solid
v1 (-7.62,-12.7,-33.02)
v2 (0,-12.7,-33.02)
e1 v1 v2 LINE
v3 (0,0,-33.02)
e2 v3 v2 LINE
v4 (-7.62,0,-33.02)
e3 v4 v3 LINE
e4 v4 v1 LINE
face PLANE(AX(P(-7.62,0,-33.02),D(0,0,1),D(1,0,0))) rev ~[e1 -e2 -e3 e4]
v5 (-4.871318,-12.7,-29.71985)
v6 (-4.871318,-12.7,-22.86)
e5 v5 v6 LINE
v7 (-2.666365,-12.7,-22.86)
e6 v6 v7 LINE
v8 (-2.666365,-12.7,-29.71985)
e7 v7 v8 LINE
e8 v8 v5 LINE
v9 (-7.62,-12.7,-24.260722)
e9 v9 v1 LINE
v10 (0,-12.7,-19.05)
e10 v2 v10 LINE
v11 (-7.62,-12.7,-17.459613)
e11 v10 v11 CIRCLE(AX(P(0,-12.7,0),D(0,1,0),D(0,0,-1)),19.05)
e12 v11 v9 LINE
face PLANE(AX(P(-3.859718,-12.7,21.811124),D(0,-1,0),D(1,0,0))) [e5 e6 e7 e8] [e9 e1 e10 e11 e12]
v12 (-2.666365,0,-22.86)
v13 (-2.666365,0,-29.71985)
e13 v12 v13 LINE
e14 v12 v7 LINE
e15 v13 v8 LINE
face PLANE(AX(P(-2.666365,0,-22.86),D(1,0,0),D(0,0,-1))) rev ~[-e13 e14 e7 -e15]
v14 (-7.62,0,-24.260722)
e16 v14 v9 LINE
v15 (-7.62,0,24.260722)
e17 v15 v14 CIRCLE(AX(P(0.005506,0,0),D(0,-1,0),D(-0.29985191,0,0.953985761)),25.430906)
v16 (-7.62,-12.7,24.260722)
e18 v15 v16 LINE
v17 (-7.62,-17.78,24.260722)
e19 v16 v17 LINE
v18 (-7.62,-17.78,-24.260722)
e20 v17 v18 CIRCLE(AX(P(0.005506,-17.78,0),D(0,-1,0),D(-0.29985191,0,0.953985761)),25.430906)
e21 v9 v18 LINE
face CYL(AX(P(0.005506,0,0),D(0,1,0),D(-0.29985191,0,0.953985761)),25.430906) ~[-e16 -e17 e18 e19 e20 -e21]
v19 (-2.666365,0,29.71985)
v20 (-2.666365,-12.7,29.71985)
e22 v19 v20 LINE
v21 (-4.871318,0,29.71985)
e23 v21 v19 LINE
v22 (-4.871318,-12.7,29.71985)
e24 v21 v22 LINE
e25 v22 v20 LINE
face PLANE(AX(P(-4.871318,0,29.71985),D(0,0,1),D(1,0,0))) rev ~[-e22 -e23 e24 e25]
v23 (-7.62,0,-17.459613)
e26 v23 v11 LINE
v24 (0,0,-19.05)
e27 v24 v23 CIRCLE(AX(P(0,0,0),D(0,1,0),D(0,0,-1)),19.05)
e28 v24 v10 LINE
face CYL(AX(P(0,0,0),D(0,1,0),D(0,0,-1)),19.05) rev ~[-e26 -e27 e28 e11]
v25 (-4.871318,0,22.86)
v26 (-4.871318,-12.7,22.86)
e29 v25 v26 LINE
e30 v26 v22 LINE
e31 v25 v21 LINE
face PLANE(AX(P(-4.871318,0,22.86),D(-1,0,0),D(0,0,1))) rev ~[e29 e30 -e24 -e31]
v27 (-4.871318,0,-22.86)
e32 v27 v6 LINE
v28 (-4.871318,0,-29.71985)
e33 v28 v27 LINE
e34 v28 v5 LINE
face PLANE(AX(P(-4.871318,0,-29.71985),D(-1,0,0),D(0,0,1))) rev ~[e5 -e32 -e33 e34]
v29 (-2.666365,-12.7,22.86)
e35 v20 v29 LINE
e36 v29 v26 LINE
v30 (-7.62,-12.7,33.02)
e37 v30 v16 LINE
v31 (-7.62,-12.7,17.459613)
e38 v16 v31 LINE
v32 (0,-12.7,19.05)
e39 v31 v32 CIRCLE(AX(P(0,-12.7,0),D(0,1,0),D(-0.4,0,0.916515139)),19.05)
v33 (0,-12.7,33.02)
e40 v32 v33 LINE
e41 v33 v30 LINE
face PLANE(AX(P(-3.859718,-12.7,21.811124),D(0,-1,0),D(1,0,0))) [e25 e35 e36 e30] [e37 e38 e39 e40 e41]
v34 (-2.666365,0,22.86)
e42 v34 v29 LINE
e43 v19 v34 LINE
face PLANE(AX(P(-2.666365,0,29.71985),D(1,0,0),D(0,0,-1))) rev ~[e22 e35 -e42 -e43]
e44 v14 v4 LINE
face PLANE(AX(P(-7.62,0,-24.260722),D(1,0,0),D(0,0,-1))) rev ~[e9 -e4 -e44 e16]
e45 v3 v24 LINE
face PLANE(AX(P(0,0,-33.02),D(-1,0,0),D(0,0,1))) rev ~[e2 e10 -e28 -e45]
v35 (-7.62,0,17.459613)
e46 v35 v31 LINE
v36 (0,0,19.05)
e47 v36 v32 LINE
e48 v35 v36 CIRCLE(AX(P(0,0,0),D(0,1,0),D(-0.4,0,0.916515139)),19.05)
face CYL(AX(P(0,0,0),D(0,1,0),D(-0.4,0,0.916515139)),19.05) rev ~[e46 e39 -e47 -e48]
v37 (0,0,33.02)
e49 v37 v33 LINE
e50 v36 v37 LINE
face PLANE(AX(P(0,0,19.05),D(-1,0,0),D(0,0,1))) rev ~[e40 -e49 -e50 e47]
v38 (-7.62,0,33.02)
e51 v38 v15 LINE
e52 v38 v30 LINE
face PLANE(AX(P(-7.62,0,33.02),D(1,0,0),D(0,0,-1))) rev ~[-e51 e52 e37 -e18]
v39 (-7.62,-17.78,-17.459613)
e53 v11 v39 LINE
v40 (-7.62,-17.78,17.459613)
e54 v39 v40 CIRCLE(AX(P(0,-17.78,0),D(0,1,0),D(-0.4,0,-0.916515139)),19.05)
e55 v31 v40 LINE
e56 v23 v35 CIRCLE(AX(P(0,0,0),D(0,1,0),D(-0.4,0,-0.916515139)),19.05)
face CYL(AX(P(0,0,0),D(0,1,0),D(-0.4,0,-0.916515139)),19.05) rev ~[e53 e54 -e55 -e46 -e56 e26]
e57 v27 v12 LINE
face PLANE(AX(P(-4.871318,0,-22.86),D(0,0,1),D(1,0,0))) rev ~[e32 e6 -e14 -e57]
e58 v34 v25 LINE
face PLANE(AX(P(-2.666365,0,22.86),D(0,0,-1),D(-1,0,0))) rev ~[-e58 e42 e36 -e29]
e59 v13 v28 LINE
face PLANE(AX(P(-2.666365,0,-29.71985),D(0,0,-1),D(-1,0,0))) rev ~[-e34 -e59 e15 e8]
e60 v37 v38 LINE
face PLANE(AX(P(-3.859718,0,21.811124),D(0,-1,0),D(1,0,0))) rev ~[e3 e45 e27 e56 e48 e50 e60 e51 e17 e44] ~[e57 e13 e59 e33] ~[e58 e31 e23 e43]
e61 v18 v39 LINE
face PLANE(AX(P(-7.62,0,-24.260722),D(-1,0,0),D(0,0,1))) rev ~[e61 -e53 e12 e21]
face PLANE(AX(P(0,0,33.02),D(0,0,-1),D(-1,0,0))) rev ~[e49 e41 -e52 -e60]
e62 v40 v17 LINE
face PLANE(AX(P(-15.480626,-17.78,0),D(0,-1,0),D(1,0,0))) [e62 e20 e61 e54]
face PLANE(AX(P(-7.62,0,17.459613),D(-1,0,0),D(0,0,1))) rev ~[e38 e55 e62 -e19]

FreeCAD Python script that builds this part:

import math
import FreeCAD as App
import Part
import Sketcher
Q = App.Units.Quantity


def add_polygon(sketch, points):
    """Adds a closed chain of lines whose ends are joined by coincident constraints."""
    first, n = sketch.GeometryCount, len(points)
    for a, b in zip(points, points[1:] + points[:1]):
        sketch.addGeometry(Part.LineSegment(App.Vector(*a, 0), App.Vector(*b, 0)), False)
    for i in range(n):
        sketch.addConstraint(Sketcher.Constraint("Coincident", first + i, 2, first + (i + 1) % n, 1))

doc = App.newDocument("Part")
body = doc.addObject("PartDesign::Body", "Body")

sketch1 = doc.addObject("Sketcher::SketchObject", "Sketch")
body.addObject(sketch1)
sketch1.AttachmentSupport = (doc.XZ_Plane, [""])
sketch1.MapMode = "FlatFace"
sketch1.addGeometry(Part.LineSegment(App.Vector(-7.62, 33.02, 0), App.Vector(-7.62, 24.260722, 0)), False)
sketch1.addGeometry(Part.ArcOfCircle(Part.Circle(App.Vector(0.005506, 0, 0), App.Vector(0, 0, 1), 25.430906), math.radians(107.448709), math.radians(252.551291)), False)
sketch1.addGeometry(Part.LineSegment(App.Vector(-7.62, -24.260722, 0), App.Vector(-7.62, -33.02, 0)), False)
sketch1.addGeometry(Part.LineSegment(App.Vector(-7.62, -33.02, 0), App.Vector(0, -33.02, 0)), False)
sketch1.addGeometry(Part.LineSegment(App.Vector(0, -33.02, 0), App.Vector(0, -19.05, 0)), False)
sketch1.addGeometry(Part.ArcOfCircle(Part.Circle(App.Vector(0, 0, 0), App.Vector(0, 0, 1), 19.05), math.radians(-113.578178), math.radians(-90)), False)
sketch1.addGeometry(Part.ArcOfCircle(Part.Circle(App.Vector(0, 0, 0), App.Vector(0, 0, 1), 19.05), math.radians(113.578178), math.radians(246.421822)), False)
sketch1.addGeometry(Part.ArcOfCircle(Part.Circle(App.Vector(0, 0, 0), App.Vector(0, 0, 1), 19.05), math.radians(90), math.radians(113.578178)), False)
sketch1.addGeometry(Part.LineSegment(App.Vector(0, 19.05, 0), App.Vector(0, 33.02, 0)), False)
sketch1.addGeometry(Part.LineSegment(App.Vector(0, 33.02, 0), App.Vector(-7.62, 33.02, 0)), False)
add_polygon(sketch1, [(-2.666365, 22.86), (-4.871318, 22.86), (-4.871318, 29.71985), (-2.666365, 29.71985)])
add_polygon(sketch1, [(-2.666365, -29.71985), (-4.871318, -29.71985), (-4.871318, -22.86), (-2.666365, -22.86)])
sketch1.addConstraint([
    Sketcher.Constraint("Coincident", 0, 2, 1, 1),
    Sketcher.Constraint("Coincident", 1, 2, 2, 1),
    Sketcher.Constraint("Coincident", 2, 2, 3, 1),
    Sketcher.Constraint("Coincident", 3, 2, 4, 1),
    Sketcher.Constraint("Coincident", 4, 2, 5, 2),
    Sketcher.Constraint("Tangent", 5, 1, 6, 2),
    Sketcher.Constraint("Tangent", 6, 1, 7, 2),
    Sketcher.Constraint("Coincident", 7, 1, 8, 1),
    Sketcher.Constraint("Coincident", 8, 2, 9, 1),
    Sketcher.Constraint("Coincident", 9, 2, 0, 1),
    Sketcher.Constraint("Vertical", 0),
    Sketcher.Constraint("Vertical", 2),
    Sketcher.Constraint("Horizontal", 3),
    Sketcher.Constraint("Vertical", 4),
    Sketcher.Constraint("Vertical", 8),
    Sketcher.Constraint("Horizontal", 9),
    Sketcher.Constraint("Horizontal", 10),
    Sketcher.Constraint("Vertical", 11),
    Sketcher.Constraint("Horizontal", 12),
    Sketcher.Constraint("Vertical", 13),
    Sketcher.Constraint("Horizontal", 14),
    Sketcher.Constraint("Vertical", 15),
    Sketcher.Constraint("Horizontal", 16),
    Sketcher.Constraint("Vertical", 17),
    Sketcher.Constraint("Coincident", 5, 3, -1, 1),
    Sketcher.Constraint("Coincident", 7, 3, -1, 1),
    Sketcher.Constraint("Symmetric", 3, 2, 8, 2, -1, 1),
    Sketcher.Constraint("Symmetric", 0, 2, 1, 2, -1),
    Sketcher.Constraint("Symmetric", 11, 2, 14, 2, -1),
    Sketcher.Constraint("Symmetric", 13, 2, 16, 2, -1),
    Sketcher.Constraint("PointOnObject", 3, 2, -2),
    Sketcher.Constraint("Vertical", 2, 2, 5, 1),
    Sketcher.Constraint("Vertical", 5, 1, 6, 1),
    Sketcher.Constraint("Radius", 5, Q("0.75 in")),
    Sketcher.Constraint("DistanceX", 3, 1, 3, 2, Q("0.3 in")),
    Sketcher.Constraint("DistanceY", 4, 1, 4, 2, Q("0.55 in")),
    Sketcher.Constraint("DistanceY", -1, 1, 10, 2, Q("0.9 in")),
    Sketcher.Constraint("Radius", 1, 25.430906),
    Sketcher.Constraint("DistanceY", 0, 2, 0, 1, 8.759278),
    Sketcher.Constraint("DistanceY", 11, 1, 11, 2, 6.85985),
    Sketcher.Constraint("DistanceX", 10, 2, 10, 1, 2.204953),
    Sketcher.Constraint("DistanceX", 10, 2, -1, 1, 4.871318),
])
pad1 = doc.addObject("PartDesign::Pad", "Pad")
body.addObject(pad1)
pad1.Profile = sketch1
pad1.Length = Q("0.5 in")

sketch2 = doc.addObject("Sketcher::SketchObject", "Sketch001")
body.addObject(sketch2)
sketch2.AttachmentSupport = (doc.XZ_Plane, [""])
sketch2.MapMode = "FlatFace"
sketch2.addGeometry([
    Part.ArcOfCircle(Part.Circle(App.Vector(0, 0, 0), App.Vector(0, 0, 1), 19.05), math.radians(113.578178), math.radians(246.421822)),
    Part.LineSegment(App.Vector(-7.62, 17.459613, 0), App.Vector(-7.62, 24.260722, 0)),
    Part.ArcOfCircle(Part.Circle(App.Vector(0.005506, 0, 0), App.Vector(0, 0, 1), 25.430906), math.radians(107.448709), math.radians(252.551291)),
    Part.LineSegment(App.Vector(-7.62, -24.260722, 0), App.Vector(-7.62, -17.459613, 0)),
], False)
sketch2.addConstraint([
    Sketcher.Constraint("Coincident", 0, 1, 1, 1),
    Sketcher.Constraint("Coincident", 1, 2, 2, 1),
    Sketcher.Constraint("Coincident", 2, 2, 3, 1),
    Sketcher.Constraint("Coincident", 3, 2, 0, 2),
    Sketcher.Constraint("Vertical", 1),
    Sketcher.Constraint("Vertical", 3),
    Sketcher.Constraint("Coincident", 0, 3, -1, 1),
    Sketcher.Constraint("Symmetric", 1, 2, 2, 2, -1),
    Sketcher.Constraint("Radius", 0, Q("0.75 in")),
    Sketcher.Constraint("DistanceX", 0, 1, -1, 1, Q("0.3 in")),
    Sketcher.Constraint("Radius", 2, 25.430906),
    Sketcher.Constraint("DistanceY", 1, 1, 1, 2, 6.801108),
])
pad2 = doc.addObject("PartDesign::Pad", "Pad001")
body.addObject(pad2)
pad2.Profile = sketch2
pad2.Length = Q("0.7 in")

doc.recompute()
